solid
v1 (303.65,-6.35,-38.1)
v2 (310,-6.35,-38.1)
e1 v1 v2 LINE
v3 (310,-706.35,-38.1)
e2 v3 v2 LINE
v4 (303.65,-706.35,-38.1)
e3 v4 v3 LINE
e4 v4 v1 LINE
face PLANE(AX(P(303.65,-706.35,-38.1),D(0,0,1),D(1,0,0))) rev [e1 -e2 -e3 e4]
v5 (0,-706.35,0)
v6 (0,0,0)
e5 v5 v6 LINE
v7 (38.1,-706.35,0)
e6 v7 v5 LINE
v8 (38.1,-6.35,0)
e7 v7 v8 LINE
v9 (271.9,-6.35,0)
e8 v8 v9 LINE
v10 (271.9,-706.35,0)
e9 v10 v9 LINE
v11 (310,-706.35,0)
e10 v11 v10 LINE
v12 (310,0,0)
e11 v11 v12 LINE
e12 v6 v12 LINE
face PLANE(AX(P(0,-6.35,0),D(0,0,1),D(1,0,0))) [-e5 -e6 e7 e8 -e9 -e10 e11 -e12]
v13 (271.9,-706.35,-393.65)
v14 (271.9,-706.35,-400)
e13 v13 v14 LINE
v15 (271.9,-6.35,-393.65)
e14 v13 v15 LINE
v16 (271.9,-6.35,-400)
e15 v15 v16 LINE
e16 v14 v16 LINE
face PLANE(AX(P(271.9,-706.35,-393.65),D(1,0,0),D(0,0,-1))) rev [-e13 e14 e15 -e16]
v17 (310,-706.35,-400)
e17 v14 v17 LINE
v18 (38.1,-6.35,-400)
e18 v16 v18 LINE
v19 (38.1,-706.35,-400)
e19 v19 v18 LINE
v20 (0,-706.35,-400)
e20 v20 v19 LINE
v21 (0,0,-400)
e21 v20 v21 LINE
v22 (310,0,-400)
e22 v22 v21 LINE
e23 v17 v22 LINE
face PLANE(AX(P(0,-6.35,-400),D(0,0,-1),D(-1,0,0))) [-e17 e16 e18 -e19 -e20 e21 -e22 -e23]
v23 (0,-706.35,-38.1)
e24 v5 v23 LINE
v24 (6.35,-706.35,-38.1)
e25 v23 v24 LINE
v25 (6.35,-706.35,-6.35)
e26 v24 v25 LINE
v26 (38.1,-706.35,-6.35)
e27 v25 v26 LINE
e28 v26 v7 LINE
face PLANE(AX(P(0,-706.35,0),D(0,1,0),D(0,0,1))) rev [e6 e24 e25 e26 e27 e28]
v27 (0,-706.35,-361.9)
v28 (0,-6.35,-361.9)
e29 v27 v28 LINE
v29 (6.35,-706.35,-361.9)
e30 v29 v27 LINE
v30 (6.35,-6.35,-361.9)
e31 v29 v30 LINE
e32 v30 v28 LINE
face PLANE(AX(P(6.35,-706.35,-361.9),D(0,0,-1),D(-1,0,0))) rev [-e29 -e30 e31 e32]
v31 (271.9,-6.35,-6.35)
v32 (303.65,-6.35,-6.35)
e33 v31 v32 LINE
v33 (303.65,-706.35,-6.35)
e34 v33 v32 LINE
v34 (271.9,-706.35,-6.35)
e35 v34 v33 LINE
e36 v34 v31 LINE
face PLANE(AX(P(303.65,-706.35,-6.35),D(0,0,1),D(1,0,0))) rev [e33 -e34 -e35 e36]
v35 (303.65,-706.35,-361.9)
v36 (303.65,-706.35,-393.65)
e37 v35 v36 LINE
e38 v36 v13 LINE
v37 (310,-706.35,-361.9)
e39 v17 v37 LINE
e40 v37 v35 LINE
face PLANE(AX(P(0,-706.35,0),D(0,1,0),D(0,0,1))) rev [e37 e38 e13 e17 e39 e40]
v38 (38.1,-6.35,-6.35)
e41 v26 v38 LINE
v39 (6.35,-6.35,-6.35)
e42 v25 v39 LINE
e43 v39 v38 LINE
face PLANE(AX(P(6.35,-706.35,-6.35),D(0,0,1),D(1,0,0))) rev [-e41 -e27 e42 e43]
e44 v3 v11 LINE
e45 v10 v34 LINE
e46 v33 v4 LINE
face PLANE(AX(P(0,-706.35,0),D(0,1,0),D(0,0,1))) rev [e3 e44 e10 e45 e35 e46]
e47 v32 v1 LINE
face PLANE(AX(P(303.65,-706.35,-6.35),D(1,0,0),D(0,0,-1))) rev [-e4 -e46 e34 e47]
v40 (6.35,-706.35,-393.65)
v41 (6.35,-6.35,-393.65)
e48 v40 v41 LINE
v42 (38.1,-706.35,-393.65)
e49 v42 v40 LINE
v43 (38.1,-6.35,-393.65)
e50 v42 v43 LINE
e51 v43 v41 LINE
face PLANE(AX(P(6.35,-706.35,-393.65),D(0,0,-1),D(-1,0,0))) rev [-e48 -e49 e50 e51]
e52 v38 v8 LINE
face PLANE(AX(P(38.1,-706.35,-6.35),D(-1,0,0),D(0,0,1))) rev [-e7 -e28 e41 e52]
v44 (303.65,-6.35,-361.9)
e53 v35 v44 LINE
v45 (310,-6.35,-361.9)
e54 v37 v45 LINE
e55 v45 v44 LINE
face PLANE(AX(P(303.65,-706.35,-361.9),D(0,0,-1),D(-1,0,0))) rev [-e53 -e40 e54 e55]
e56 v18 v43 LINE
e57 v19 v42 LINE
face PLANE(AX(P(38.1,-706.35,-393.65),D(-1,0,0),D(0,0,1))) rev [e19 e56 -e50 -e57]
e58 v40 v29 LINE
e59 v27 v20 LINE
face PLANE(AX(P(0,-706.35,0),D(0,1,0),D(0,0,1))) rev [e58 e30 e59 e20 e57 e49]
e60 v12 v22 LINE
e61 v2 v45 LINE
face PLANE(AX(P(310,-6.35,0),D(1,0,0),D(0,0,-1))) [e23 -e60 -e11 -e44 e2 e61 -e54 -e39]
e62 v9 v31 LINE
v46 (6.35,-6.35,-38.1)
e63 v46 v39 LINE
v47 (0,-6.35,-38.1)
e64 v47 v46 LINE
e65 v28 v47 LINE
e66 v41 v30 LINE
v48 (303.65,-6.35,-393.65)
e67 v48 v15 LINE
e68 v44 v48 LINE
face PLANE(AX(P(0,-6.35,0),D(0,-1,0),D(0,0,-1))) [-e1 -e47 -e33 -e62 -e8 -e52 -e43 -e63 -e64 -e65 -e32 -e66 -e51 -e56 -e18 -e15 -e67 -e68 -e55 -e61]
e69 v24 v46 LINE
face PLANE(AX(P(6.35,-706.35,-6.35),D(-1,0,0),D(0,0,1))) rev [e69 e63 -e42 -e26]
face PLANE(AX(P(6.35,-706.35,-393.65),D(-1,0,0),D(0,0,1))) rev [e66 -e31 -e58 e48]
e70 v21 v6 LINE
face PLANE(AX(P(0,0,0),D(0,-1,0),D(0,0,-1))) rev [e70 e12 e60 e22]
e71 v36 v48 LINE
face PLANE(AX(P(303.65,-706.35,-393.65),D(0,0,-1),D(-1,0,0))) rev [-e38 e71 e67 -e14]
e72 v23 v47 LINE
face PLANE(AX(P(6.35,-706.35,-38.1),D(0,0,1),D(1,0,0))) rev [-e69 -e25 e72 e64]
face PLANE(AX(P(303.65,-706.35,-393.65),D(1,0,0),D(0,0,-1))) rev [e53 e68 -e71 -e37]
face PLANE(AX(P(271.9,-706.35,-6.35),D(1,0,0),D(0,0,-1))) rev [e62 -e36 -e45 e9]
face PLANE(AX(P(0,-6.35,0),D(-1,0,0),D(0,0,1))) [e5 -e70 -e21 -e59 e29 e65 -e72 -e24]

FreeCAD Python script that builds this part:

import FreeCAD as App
import Part
import Sketcher
from FreeCAD import Vector


def add_polygon(sketch, points):
    """Adds a closed chain of lines whose ends are joined by coincident constraints."""
    first, n = sketch.GeometryCount, len(points)
    for a, b in zip(points, points[1:] + points[:1]):
        sketch.addGeometry(Part.LineSegment(App.Vector(*a, 0), App.Vector(*b, 0)), False)
    for i in range(n):
        sketch.addConstraint(Sketcher.Constraint("Coincident", first + i, 2, first + (i + 1) % n, 1))

doc = App.newDocument("Part")
body = doc.addObject("PartDesign::Body", "Body")

sketch1 = body.newObject("Sketcher::SketchObject", "Sketch")
sketch1.AttachmentSupport = (doc.getObject("XZ_Plane"), [""])
sketch1.MapMode = "FlatFace"
add_polygon(sketch1, [(0, -400), (0, 0), (310, 0), (310, -400)])
sketch1.addConstraint([
    Sketcher.Constraint("Vertical", 0),
    Sketcher.Constraint("Horizontal", 1),
    Sketcher.Constraint("Vertical", 2),
    Sketcher.Constraint("Horizontal", 3),
    Sketcher.Constraint("Coincident", 0, 2, -1, 1),
    Sketcher.Constraint("DistanceX", 1, 1, 1, 2, 310.0),
    Sketcher.Constraint("DistanceY", 0, 1, 0, 2, 400.0),
])
pad1 = body.newObject("PartDesign::Pad", "Pad")
pad1.Profile = sketch1
pad1.Length = 6.35

sketch2 = body.newObject("Sketcher::SketchObject", "Sketch001")
sketch2.AttachmentSupport = (doc.getObject("XZ_Plane"), [""])
sketch2.MapMode = "FlatFace"
sketch2.AttachmentOffset = App.Placement(Vector(0, 0, 6.35), App.Rotation())
add_polygon(sketch2, [(38, 0), (0, 0), (0, -38), (6, -38), (6, -6), (38, -6)])
add_polygon(sketch2, [(304, -38), (310, -38), (310, 0), (272, 0), (272, -6), (304, -6)])
add_polygon(sketch2, [(272, -400), (310, -400), (310, -362), (304, -362), (304, -394), (272, -394)])
add_polygon(sketch2, [(6, -362), (0, -362), (0, -400), (38, -400), (38, -394), (6, -394)])
sketch2.addConstraint([
    Sketcher.Constraint("Horizontal", 0),
    Sketcher.Constraint("Vertical", 1),
    Sketcher.Constraint("Horizontal", 2),
    Sketcher.Constraint("Vertical", 3),
    Sketcher.Constraint("Horizontal", 4),
    Sketcher.Constraint("Vertical", 5),
    Sketcher.Constraint("Horizontal", 6),
    Sketcher.Constraint("Vertical", 7),
    Sketcher.Constraint("Horizontal", 8),
    Sketcher.Constraint("Vertical", 9),
    Sketcher.Constraint("Horizontal", 10),
    Sketcher.Constraint("Vertical", 11),
    Sketcher.Constraint("Horizontal", 12),
    Sketcher.Constraint("Vertical", 13),
    Sketcher.Constraint("Horizontal", 14),
    Sketcher.Constraint("Vertical", 15),
    Sketcher.Constraint("Horizontal", 16),
    Sketcher.Constraint("Vertical", 17),
    Sketcher.Constraint("Horizontal", 18),
    Sketcher.Constraint("Vertical", 19),
    Sketcher.Constraint("Horizontal", 20),
    Sketcher.Constraint("Vertical", 21),
    Sketcher.Constraint("Horizontal", 22),
    Sketcher.Constraint("Vertical", 23),
    Sketcher.Constraint("Coincident", 0, 2, -1, 1),
    Sketcher.Constraint("PointOnObject", 7, 2, -1),
    Sketcher.Constraint("PointOnObject", 18, 2, -2),
    Sketcher.Constraint("Horizontal", 2, 2, 6, 2),
    Sketcher.Constraint("Horizontal", 4, 2, 9, 2),
    Sketcher.Constraint("Horizontal", 14, 2, 18, 2),
    Sketcher.Constraint("Horizontal", 17, 2, 19, 2),
    Sketcher.Constraint("Horizontal", 16, 2, 21, 2),
    Sketcher.Constraint("Vertical", 7, 2, 12, 2),
    Sketcher.Constraint("Vertical", 11, 2, 14, 2),
    Sketcher.Constraint("Vertical", 9, 2, 16, 2),
    Sketcher.Constraint("Vertical", 5, 2, 20, 2),
    Sketcher.Constraint("Vertical", 3, 2, 22, 2),
    Sketcher.Constraint("Equal", 2, 6),
    Sketcher.Constraint("Equal", 0, 8),
    Sketcher.Constraint("Equal", 20, 1),
    Sketcher.Constraint("Equal", 22, 3),
    Sketcher.Constraint("Equal", 7, 13),
    Sketcher.Constraint("Equal", 11, 15),
    Sketcher.Constraint("DistanceX", 0, 2, 0, 1, 38.1),
    Sketcher.Constraint("DistanceX", -1, 1, 6, 2, 310.0),
    Sketcher.Constraint("DistanceY", 12, 2, -1, 1, 400.0),
    Sketcher.Constraint("DistanceX", 2, 1, 2, 2, 6.35),
])
pad2 = body.newObject("PartDesign::Pad", "Pad001")
pad2.Profile = sketch2
pad2.Length = 700

doc.recompute()
